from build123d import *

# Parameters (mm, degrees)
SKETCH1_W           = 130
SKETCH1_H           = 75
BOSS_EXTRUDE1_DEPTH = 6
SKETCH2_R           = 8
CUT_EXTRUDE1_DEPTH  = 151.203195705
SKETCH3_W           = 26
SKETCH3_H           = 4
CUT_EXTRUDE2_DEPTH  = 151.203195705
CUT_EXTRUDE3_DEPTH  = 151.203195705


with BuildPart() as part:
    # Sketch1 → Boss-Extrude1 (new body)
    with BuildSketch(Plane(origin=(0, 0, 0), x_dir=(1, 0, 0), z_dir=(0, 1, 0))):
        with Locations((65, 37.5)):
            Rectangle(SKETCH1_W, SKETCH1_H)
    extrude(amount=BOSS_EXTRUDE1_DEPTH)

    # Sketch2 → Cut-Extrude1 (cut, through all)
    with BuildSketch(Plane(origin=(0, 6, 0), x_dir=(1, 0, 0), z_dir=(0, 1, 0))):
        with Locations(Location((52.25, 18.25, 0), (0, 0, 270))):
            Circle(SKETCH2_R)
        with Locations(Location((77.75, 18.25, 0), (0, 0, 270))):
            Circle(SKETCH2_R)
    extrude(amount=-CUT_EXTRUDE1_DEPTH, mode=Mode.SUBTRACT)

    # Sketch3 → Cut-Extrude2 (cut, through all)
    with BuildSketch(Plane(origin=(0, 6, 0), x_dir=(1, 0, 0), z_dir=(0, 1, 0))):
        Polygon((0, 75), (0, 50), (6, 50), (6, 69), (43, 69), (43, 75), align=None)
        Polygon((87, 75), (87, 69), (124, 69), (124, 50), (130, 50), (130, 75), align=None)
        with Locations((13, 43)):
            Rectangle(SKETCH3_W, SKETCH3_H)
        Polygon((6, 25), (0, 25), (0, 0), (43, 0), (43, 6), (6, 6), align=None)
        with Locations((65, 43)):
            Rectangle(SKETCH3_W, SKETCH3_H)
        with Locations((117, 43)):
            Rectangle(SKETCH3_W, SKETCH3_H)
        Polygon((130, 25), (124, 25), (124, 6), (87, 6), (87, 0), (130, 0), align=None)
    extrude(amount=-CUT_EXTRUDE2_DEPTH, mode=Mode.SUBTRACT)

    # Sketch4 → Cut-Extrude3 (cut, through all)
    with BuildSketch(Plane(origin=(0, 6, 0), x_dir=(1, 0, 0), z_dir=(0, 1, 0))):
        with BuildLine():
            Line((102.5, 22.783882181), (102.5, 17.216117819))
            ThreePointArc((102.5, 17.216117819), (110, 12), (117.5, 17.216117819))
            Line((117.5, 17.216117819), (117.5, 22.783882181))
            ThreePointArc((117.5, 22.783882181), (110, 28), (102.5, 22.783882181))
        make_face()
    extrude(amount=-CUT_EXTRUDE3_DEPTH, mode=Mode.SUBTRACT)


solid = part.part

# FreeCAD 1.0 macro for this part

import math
import FreeCAD as App
import Part
import Sketcher


def add_polygon(sketch, points):
    """Adds a closed chain of lines whose ends are joined by coincident constraints."""
    first, n = sketch.GeometryCount, len(points)
    for a, b in zip(points, points[1:] + points[:1]):
        sketch.addGeometry(Part.LineSegment(App.Vector(*a, 0), App.Vector(*b, 0)), False)
    for i in range(n):
        sketch.addConstraint(Sketcher.Constraint("Coincident", first + i, 2, first + (i + 1) % n, 1))

doc = App.newDocument("Part")
body = doc.addObject("PartDesign::Body", "Body")

sketch1 = body.newObject("Sketcher::SketchObject", "Sketch")
sketch1.AttachmentSupport = (doc.getObject("XZ_Plane"), [""])
sketch1.MapMode = "FlatFace"
add_polygon(sketch1, [(0, -75), (0, 0), (130, 0), (130, -75)])
sketch1.addConstraint(Sketcher.Constraint("Vertical", 0))
sketch1.addConstraint(Sketcher.Constraint("Horizontal", 1))
sketch1.addConstraint(Sketcher.Constraint("Vertical", 2))
sketch1.addConstraint(Sketcher.Constraint("Horizontal", 3))
sketch1.addConstraint(Sketcher.Constraint("Coincident", 0, 2, -1, 1))
sketch1.addConstraint(Sketcher.Constraint("DistanceX", 1, 1, 1, 2, 130.0))
sketch1.addConstraint(Sketcher.Constraint("DistanceY", 0, 1, 0, 2, 75.0))
pad1 = body.newObject("PartDesign::Pad", "Pad")
pad1.Profile = sketch1
pad1.Length = 6
pad1.Reversed = True

sketch2 = body.newObject("Sketcher::SketchObject", "Sketch001")
sketch2.AttachmentSupport = (doc.getObject("XZ_Plane"), [""])
sketch2.MapMode = "FlatFace"
sketch2.AttachmentOffset = App.Placement(App.Vector(0, 0, -6), App.Rotation())
sketch2.addGeometry(Part.Circle(App.Vector(52, -18, 0), App.Vector(0, 0, 1), 8), False)
sketch2.addGeometry(Part.Circle(App.Vector(78, -18, 0), App.Vector(0, 0, 1), 8), False)
sketch2.addConstraint(Sketcher.Constraint("Equal", 0, 1))
sketch2.addConstraint(Sketcher.Constraint("Horizontal", 0, 3, 1, 3))
sketch2.addConstraint(Sketcher.Constraint("Diameter", 0, 16.0))
sketch2.addConstraint(Sketcher.Constraint("DistanceX", 0, 3, 1, 3, 25.5))
sketch2.addConstraint(Sketcher.Constraint("DistanceX", -1, 1, 0, 3, 52.25))
sketch2.addConstraint(Sketcher.Constraint("DistanceY", 0, 3, -1, 1, 18.25))
pocket1 = body.newObject("PartDesign::Pocket", "Pocket")
pocket1.Profile = sketch2
pocket1.Type = "ThroughAll"
pocket1.Reversed = True

sketch3 = body.newObject("Sketcher::SketchObject", "Sketch002")
sketch3.AttachmentSupport = (doc.getObject("XZ_Plane"), [""])
sketch3.MapMode = "FlatFace"
sketch3.AttachmentOffset = App.Placement(App.Vector(0, 0, -6), App.Rotation())
add_polygon(sketch3, [(0, -75), (0, -50), (6, -50), (6, -69), (43, -69), (43, -75)])
add_polygon(sketch3, [(87, -75), (87, -69), (124, -69), (124, -50), (130, -50), (130, -75)])
add_polygon(sketch3, [(0, -45), (0, -41), (26, -41), (26, -45)])
add_polygon(sketch3, [(6, -25), (0, -25), (0, 0), (43, 0), (43, -6), (6, -6)])
add_polygon(sketch3, [(52, -45), (52, -41), (78, -41), (78, -45)])
add_polygon(sketch3, [(104, -45), (104, -41), (130, -41), (130, -45)])
add_polygon(sketch3, [(130, -25), (124, -25), (124, -6), (87, -6), (87, 0), (130, 0)])
sketch3.addConstraint(Sketcher.Constraint("Vertical", 0))
sketch3.addConstraint(Sketcher.Constraint("Horizontal", 1))
sketch3.addConstraint(Sketcher.Constraint("Vertical", 2))
sketch3.addConstraint(Sketcher.Constraint("Horizontal", 3))
sketch3.addConstraint(Sketcher.Constraint("Vertical", 4))
sketch3.addConstraint(Sketcher.Constraint("Horizontal", 5))
sketch3.addConstraint(Sketcher.Constraint("Vertical", 6))
sketch3.addConstraint(Sketcher.Constraint("Horizontal", 7))
sketch3.addConstraint(Sketcher.Constraint("Vertical", 8))
sketch3.addConstraint(Sketcher.Constraint("Horizontal", 9))
sketch3.addConstraint(Sketcher.Constraint("Vertical", 10))
sketch3.addConstraint(Sketcher.Constraint("Horizontal", 11))
sketch3.addConstraint(Sketcher.Constraint("Vertical", 12))
sketch3.addConstraint(Sketcher.Constraint("Horizontal", 13))
sketch3.addConstraint(Sketcher.Constraint("Vertical", 14))
sketch3.addConstraint(Sketcher.Constraint("Horizontal", 15))
sketch3.addConstraint(Sketcher.Constraint("Horizontal", 16))
sketch3.addConstraint(Sketcher.Constraint("Vertical", 17))
sketch3.addConstraint(Sketcher.Constraint("Horizontal", 18))
sketch3.addConstraint(Sketcher.Constraint("Vertical", 19))
sketch3.addConstraint(Sketcher.Constraint("Horizontal", 20))
sketch3.addConstraint(Sketcher.Constraint("Vertical", 21))
sketch3.addConstraint(Sketcher.Constraint("Vertical", 22))
sketch3.addConstraint(Sketcher.Constraint("Horizontal", 23))
sketch3.addConstraint(Sketcher.Constraint("Vertical", 24))
sketch3.addConstraint(Sketcher.Constraint("Horizontal", 25))
sketch3.addConstraint(Sketcher.Constraint("Vertical", 26))
sketch3.addConstraint(Sketcher.Constraint("Horizontal", 27))
sketch3.addConstraint(Sketcher.Constraint("Vertical", 28))
sketch3.addConstraint(Sketcher.Constraint("Horizontal", 29))
sketch3.addConstraint(Sketcher.Constraint("Horizontal", 30))
sketch3.addConstraint(Sketcher.Constraint("Vertical", 31))
sketch3.addConstraint(Sketcher.Constraint("Horizontal", 32))
sketch3.addConstraint(Sketcher.Constraint("Vertical", 33))
sketch3.addConstraint(Sketcher.Constraint("Horizontal", 34))
sketch3.addConstraint(Sketcher.Constraint("Vertical", 35))
sketch3.addConstraint(Sketcher.Constraint("Coincident", 17, 2, -1, 1))
sketch3.addConstraint(Sketcher.Constraint("PointOnObject", 0, 2, -2))
sketch3.addConstraint(Sketcher.Constraint("PointOnObject", 12, 2, -2))
sketch3.addConstraint(Sketcher.Constraint("PointOnObject", 33, 2, -1))
sketch3.addConstraint(Sketcher.Constraint("Horizontal", 3, 2, 6, 2))
sketch3.addConstraint(Sketcher.Constraint("Horizontal", 1, 2, 8, 2))
sketch3.addConstraint(Sketcher.Constraint("Horizontal", 5, 2, 10, 2))
sketch3.addConstraint(Sketcher.Constraint("Horizontal", 13, 2, 22, 2))
sketch3.addConstraint(Sketcher.Constraint("Horizontal", 15, 2, 24, 2))
sketch3.addConstraint(Sketcher.Constraint("Horizontal", 23, 2, 26, 2))
sketch3.addConstraint(Sketcher.Constraint("Horizontal", 25, 2, 28, 2))
sketch3.addConstraint(Sketcher.Constraint("Horizontal", 21, 2, 30, 2))
sketch3.addConstraint(Sketcher.Constraint("Horizontal", 20, 2, 31, 2))
sketch3.addConstraint(Sketcher.Constraint("Vertical", 4, 2, 18, 2))
sketch3.addConstraint(Sketcher.Constraint("Vertical", 2, 2, 20, 2))
sketch3.addConstraint(Sketcher.Constraint("Vertical", 10, 2, 27, 2))
sketch3.addConstraint(Sketcher.Constraint("Vertical", 8, 2, 30, 2))
sketch3.addConstraint(Sketcher.Constraint("Vertical", 11, 2, 32, 2))
sketch3.addConstraint(Sketcher.Constraint("Vertical", 28, 2, 34, 2))
sketch3.addConstraint(Sketcher.Constraint("Equal", 3, 7))
sketch3.addConstraint(Sketcher.Constraint("Equal", 1, 9))
sketch3.addConstraint(Sketcher.Constraint("Equal", 15, 23))
sketch3.addConstraint(Sketcher.Constraint("Equal", 25, 27))
sketch3.addConstraint(Sketcher.Constraint("Equal", 30, 4))
sketch3.addConstraint(Sketcher.Constraint("Equal", 10, 17))
sketch3.addConstraint(Sketcher.Constraint("Equal", 6, 19))
sketch3.addConstraint(Sketcher.Constraint("DistanceX", 1, 1, 1, 2, 6.0))
sketch3.addConstraint(Sketcher.Constraint("DistanceX", 3, 1, 3, 2, 37.0))
sketch3.addConstraint(Sketcher.Constraint("DistanceX", 13, 1, 13, 2, 26.0))
sketch3.addConstraint(Sketcher.Constraint("DistanceY", 0, 1, 0, 2, 25.0))
sketch3.addConstraint(Sketcher.Constraint("DistanceY", 12, 1, 12, 2, 4.0))
sketch3.addConstraint(Sketcher.Constraint("DistanceY", 0, 2, -1, 1, 50.0))
sketch3.addConstraint(Sketcher.Constraint("DistanceX", -1, 1, 6, 2, 87.0))
sketch3.addConstraint(Sketcher.Constraint("DistanceY", 12, 2, -1, 1, 41.0))
sketch3.addConstraint(Sketcher.Constraint("DistanceX", -1, 1, 22, 2, 52.0))
pocket2 = body.newObject("PartDesign::Pocket", "Pocket001")
pocket2.Profile = sketch3
pocket2.Type = "ThroughAll"
pocket2.Reversed = True

sketch4 = body.newObject("Sketcher::SketchObject", "Sketch003")
sketch4.AttachmentSupport = (doc.getObject("XZ_Plane"), [""])
sketch4.MapMode = "FlatFace"
sketch4.AttachmentOffset = App.Placement(App.Vector(0, 0, -6), App.Rotation())
sketch4.addGeometry(Part.LineSegment(App.Vector(102, -23, 0), App.Vector(102, -17, 0)), False)
sketch4.addGeometry(Part.ArcOfCircle(Part.Circle(App.Vector(110, -20, 0), App.Vector(0, 0, 1), 8), math.radians(20), math.radians(160)), False)
sketch4.addGeometry(Part.LineSegment(App.Vector(118, -17, 0), App.Vector(118, -23, 0)), False)
sketch4.addGeometry(Part.ArcOfCircle(Part.Circle(App.Vector(110, -20, 0), App.Vector(0, 0, 1), 8), math.radians(-160), math.radians(-20)), False)
sketch4.addConstraint(Sketcher.Constraint("Coincident", 0, 2, 1, 2))
sketch4.addConstraint(Sketcher.Constraint("Coincident", 1, 1, 2, 1))
sketch4.addConstraint(Sketcher.Constraint("Coincident", 2, 2, 3, 2))
sketch4.addConstraint(Sketcher.Constraint("Coincident", 3, 1, 0, 1))
sketch4.addConstraint(Sketcher.Constraint("Vertical", 0))
sketch4.addConstraint(Sketcher.Constraint("Vertical", 2))
sketch4.addConstraint(Sketcher.Constraint("Coincident", 3, 3, 1, 3))
sketch4.addConstraint(Sketcher.Constraint("Equal", 1, 3))
sketch4.addConstraint(Sketcher.Constraint("Horizontal", 0, 2, 1, 1))
sketch4.addConstraint(Sketcher.Constraint("Radius", 1, 8.0))
sketch4.addConstraint(Sketcher.Constraint("DistanceX", -1, 1, 1, 3, 110.0))
sketch4.addConstraint(Sketcher.Constraint("DistanceY", 1, 3, -1, 1, 20.0))
sketch4.addConstraint(Sketcher.Constraint("DistanceX", 0, 2, 1, 1, 15.0))
pocket3 = body.newObject("PartDesign::Pocket", "Pocket002")
pocket3.Profile = sketch4
pocket3.Type = "ThroughAll"
pocket3.Reversed = True

doc.recompute()
